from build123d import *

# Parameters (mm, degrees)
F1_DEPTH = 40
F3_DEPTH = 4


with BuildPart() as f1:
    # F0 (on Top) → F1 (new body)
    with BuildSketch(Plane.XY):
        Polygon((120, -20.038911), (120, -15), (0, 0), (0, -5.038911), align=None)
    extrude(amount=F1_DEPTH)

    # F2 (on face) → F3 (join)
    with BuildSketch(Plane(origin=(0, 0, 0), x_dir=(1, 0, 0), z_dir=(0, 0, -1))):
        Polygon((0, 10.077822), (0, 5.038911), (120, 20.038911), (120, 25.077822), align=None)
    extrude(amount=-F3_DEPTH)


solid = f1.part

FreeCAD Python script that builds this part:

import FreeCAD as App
import Part
import Sketcher
Q = App.Units.Quantity

doc = App.newDocument("Part")
body = doc.addObject("PartDesign::Body", "Body")

sketch1 = body.newObject("Sketcher::SketchObject", "Sketch")
sketch1.AttachmentSupport = (doc.getObject("XY_Plane"), [""])
sketch1.MapMode = "FlatFace"
sketch1.addGeometry([
    Part.LineSegment(App.Vector(120, -20, 0), App.Vector(120, -15, 0)),
    Part.LineSegment(App.Vector(120, -15, 0), App.Vector(0, 0, 0)),
    Part.LineSegment(App.Vector(0, 0, 0), App.Vector(0, -5, 0)),
    Part.LineSegment(App.Vector(0, -5, 0), App.Vector(120, -20, 0)),
], False)
sketch1.addConstraint([
    Sketcher.Constraint("Coincident", 0, 2, 1, 1),
    Sketcher.Constraint("Coincident", 1, 2, 2, 1),
    Sketcher.Constraint("Coincident", 2, 2, 3, 1),
    Sketcher.Constraint("Coincident", 3, 2, 0, 1),
    Sketcher.Constraint("Vertical", 0),
    Sketcher.Constraint("Vertical", 2),
    Sketcher.Constraint("Coincident", 1, 2, -1, 1),
    Sketcher.Constraint("Parallel", 1, 3),
    Sketcher.Constraint("DistanceX", -1, 1, 0, 2, Q("120 mm")),
    Sketcher.Constraint("DistanceY", 0, 2, -1, 1, Q("15 mm")),
    Sketcher.Constraint("DistanceY", 0, 1, 0, 2, Q("5.038911 mm")),
])
pad1 = body.newObject("PartDesign::Pad", "Pad")
pad1.Profile = sketch1
pad1.Length = 40

sketch2 = body.newObject("Sketcher::SketchObject", "Sketch001")
sketch2.AttachmentSupport = (doc.getObject("XY_Plane"), [""])
sketch2.MapMode = "FlatFace"
sketch2.addGeometry([
    Part.LineSegment(App.Vector(0, -10, 0), App.Vector(0, -5, 0)),
    Part.LineSegment(App.Vector(0, -5, 0), App.Vector(120, -20, 0)),
    Part.LineSegment(App.Vector(120, -20, 0), App.Vector(120, -25, 0)),
    Part.LineSegment(App.Vector(120, -25, 0), App.Vector(0, -10, 0)),
], False)
sketch2.addConstraint([
    Sketcher.Constraint("Coincident", 0, 2, 1, 1),
    Sketcher.Constraint("Coincident", 1, 2, 2, 1),
    Sketcher.Constraint("Coincident", 2, 2, 3, 1),
    Sketcher.Constraint("Coincident", 3, 2, 0, 1),
    Sketcher.Constraint("Vertical", 0),
    Sketcher.Constraint("Vertical", 2),
    Sketcher.Constraint("PointOnObject", 0, 2, -2),
    Sketcher.Constraint("Parallel", 1, 3),
    Sketcher.Constraint("DistanceX", -1, 1, 1, 2, Q("120 mm")),
    Sketcher.Constraint("DistanceY", 1, 2, 0, 2, Q("15 mm")),
    Sketcher.Constraint("DistanceY", 0, 1, 0, 2, Q("5.038911 mm")),
    Sketcher.Constraint("DistanceY", 0, 2, -1, 1, Q("5.038911 mm")),
])
pad2 = body.newObject("PartDesign::Pad", "Pad001")
pad2.Profile = sketch2
pad2.Length = 4

doc.recompute()
